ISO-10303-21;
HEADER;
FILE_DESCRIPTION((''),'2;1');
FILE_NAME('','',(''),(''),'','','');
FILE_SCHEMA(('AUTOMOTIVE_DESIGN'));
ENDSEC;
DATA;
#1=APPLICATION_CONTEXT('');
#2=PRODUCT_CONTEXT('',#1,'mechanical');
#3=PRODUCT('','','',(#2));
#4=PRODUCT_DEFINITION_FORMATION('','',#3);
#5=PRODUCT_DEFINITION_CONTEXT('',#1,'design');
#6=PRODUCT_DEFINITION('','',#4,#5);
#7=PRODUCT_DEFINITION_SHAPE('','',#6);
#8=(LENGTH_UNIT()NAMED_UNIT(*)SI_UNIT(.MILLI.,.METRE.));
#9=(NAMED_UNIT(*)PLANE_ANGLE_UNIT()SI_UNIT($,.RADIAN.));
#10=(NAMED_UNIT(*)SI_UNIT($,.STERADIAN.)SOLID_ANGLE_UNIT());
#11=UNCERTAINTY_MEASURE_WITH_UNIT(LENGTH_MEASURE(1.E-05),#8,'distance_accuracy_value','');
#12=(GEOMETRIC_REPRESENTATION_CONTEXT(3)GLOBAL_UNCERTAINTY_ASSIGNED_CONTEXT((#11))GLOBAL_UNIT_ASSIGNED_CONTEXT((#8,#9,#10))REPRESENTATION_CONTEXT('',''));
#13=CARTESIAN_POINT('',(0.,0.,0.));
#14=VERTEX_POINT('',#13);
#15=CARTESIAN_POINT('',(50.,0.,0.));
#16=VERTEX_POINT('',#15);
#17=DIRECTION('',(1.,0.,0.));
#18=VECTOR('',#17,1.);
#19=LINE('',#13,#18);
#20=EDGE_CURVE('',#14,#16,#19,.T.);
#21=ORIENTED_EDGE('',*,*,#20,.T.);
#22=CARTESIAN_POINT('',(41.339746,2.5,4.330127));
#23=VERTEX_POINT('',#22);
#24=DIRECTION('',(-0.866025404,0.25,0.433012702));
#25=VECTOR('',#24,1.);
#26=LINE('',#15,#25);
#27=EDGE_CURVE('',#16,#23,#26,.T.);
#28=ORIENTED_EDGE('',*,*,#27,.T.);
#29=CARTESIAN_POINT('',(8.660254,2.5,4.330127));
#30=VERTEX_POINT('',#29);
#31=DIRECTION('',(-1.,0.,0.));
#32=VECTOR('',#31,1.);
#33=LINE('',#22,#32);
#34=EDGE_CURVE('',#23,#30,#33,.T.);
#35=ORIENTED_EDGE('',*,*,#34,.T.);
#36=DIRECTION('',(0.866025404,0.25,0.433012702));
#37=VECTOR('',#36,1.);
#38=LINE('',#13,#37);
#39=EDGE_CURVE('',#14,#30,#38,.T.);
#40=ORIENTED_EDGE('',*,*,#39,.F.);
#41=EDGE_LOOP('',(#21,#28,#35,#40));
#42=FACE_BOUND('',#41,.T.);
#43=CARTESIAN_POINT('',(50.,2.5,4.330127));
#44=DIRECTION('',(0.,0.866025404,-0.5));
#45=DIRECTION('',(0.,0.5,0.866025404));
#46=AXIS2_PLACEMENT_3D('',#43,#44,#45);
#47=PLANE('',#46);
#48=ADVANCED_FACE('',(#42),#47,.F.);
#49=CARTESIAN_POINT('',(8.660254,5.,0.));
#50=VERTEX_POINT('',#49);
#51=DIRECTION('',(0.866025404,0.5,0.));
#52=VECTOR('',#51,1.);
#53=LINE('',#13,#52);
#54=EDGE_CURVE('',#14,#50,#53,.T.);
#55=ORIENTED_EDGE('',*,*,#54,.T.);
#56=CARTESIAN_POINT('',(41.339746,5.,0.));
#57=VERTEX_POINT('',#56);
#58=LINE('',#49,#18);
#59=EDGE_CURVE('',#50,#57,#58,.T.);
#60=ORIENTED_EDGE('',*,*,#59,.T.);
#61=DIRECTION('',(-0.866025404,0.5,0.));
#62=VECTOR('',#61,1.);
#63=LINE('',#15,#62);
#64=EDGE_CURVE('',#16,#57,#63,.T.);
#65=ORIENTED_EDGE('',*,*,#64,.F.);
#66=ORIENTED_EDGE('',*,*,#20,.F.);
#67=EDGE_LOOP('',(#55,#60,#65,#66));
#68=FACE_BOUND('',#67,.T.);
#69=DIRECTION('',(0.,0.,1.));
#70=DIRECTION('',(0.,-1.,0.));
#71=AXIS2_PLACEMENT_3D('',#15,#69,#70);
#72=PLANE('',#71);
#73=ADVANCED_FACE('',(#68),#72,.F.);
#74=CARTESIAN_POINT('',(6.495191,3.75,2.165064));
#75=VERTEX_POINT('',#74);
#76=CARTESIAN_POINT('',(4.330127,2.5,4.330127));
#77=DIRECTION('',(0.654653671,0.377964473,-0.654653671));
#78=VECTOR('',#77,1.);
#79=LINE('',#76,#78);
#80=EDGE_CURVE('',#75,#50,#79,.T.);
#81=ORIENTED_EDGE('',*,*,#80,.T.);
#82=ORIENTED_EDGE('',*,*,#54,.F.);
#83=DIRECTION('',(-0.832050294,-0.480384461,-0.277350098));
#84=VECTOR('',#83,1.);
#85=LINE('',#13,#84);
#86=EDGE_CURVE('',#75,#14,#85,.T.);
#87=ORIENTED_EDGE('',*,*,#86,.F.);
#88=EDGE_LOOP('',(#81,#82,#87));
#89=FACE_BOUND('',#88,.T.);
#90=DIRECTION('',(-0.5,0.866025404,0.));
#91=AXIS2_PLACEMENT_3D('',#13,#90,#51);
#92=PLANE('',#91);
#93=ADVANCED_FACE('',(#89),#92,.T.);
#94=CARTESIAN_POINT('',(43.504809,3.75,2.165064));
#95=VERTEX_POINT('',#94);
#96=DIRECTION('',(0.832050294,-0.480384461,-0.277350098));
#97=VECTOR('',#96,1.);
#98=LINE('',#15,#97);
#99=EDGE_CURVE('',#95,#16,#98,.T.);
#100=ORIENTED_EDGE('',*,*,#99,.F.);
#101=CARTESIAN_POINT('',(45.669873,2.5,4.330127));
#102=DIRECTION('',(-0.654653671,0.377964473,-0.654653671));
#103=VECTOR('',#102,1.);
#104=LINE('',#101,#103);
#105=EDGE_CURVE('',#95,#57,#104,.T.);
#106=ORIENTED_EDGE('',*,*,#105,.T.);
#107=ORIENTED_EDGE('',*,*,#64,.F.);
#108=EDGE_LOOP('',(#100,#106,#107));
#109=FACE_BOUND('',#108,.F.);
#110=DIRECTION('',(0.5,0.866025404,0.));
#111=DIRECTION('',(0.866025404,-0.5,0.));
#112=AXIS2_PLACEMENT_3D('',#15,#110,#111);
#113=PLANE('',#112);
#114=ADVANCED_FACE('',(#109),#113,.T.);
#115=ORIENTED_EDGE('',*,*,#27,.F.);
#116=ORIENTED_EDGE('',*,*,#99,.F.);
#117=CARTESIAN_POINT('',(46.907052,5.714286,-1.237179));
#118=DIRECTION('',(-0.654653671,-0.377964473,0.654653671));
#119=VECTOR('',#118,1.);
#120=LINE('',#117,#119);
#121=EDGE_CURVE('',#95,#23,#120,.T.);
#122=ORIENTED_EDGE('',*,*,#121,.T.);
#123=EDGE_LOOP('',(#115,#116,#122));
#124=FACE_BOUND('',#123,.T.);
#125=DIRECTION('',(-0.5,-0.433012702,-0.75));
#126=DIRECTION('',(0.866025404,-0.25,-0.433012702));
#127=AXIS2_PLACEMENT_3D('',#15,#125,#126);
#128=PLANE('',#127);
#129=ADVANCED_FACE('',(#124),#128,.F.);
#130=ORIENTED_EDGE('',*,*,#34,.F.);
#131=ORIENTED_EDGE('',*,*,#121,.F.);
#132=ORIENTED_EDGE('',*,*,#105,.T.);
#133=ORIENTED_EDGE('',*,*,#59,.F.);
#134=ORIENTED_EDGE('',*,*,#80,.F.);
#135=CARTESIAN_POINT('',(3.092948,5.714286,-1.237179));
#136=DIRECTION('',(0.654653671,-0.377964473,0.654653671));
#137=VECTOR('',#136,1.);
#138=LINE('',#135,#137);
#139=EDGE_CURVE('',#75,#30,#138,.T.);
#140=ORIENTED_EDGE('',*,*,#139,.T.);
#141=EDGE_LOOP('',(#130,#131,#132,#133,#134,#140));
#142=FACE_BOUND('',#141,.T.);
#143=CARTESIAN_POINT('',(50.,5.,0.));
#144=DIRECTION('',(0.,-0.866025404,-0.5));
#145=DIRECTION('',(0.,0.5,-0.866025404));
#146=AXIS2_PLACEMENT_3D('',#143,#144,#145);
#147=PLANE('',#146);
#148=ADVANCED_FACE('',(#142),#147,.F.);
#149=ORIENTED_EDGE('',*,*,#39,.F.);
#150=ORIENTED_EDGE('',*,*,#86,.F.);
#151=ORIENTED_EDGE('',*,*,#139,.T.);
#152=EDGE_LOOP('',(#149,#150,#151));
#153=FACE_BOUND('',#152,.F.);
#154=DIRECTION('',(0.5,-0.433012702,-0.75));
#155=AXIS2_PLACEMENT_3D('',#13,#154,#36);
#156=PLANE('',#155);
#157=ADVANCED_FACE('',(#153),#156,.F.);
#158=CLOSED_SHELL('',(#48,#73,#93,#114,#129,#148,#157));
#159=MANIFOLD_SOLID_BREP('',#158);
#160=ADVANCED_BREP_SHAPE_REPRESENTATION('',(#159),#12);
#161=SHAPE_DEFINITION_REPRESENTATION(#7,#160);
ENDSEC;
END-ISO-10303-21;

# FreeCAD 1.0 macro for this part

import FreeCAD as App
import Part
import Sketcher

V = App.Vector
Q = App.Units.Quantity

doc = App.newDocument("Part")
body = doc.addObject("PartDesign::Body", "Body")

sketch1 = body.newObject("Sketcher::SketchObject", "Sketch")
sketch1.AttachmentSupport = (doc.getObject("YZ_Plane"), [""])
sketch1.MapMode = "FlatFace"
sketch1.addGeometry([
    Part.LineSegment(V(2, 4, 0), V(0, 0, 0)),
    Part.LineSegment(V(0, 0, 0), V(5, 0, 0)),
    Part.LineSegment(V(5, 0, 0), V(2, 4, 0)),
], False)
sketch1.addConstraint([
    Sketcher.Constraint("Coincident", 0, 2, 1, 1),
    Sketcher.Constraint("Coincident", 1, 2, 2, 1),
    Sketcher.Constraint("Coincident", 2, 2, 0, 1),
    Sketcher.Constraint("Horizontal", 1),
    Sketcher.Constraint("Coincident", 0, 2, -1, 1),
    Sketcher.Constraint("Equal", 0, 2),
    Sketcher.Constraint("DistanceX", 1, 1, 1, 2, 5.0),
    Sketcher.Constraint("Angle", 0, Q("-120 deg")),
])
pad1 = body.newObject("PartDesign::Pad", "Pad")
pad1.Profile = sketch1
pad1.Length = 40

sketch2 = body.newObject("Sketcher::SketchObject", "Sketch001")
sketch2.AttachmentSupport = (doc.getObject("XY_Plane"), [""])
sketch2.MapMode = "FlatFace"
sketch2.addGeometry([
    Part.LineSegment(V(0, 10, 0), V(0, 0, 0)),
    Part.LineSegment(V(0, 0, 0), V(17, 10, 0)),
    Part.LineSegment(V(17, 10, 0), V(0, 10, 0)),
], False)
sketch2.addConstraint([
    Sketcher.Constraint("Coincident", 0, 2, 1, 1),
    Sketcher.Constraint("Coincident", 1, 2, 2, 1),
    Sketcher.Constraint("Coincident", 2, 2, 0, 1),
    Sketcher.Constraint("Vertical", 0),
    Sketcher.Constraint("Horizontal", 2),
    Sketcher.Constraint("Coincident", 0, 2, -1, 1),
    Sketcher.Constraint("Angle", 1, Q("30 deg")),
    Sketcher.Constraint("DistanceX", 2, 2, 2, 1, 17.05208),
])
pocket1 = body.newObject("PartDesign::Pocket", "Pocket")
pocket1.Profile = sketch2
pocket1.Length = 25
pocket1.Reversed = True

sketch3 = body.newObject("Sketcher::SketchObject", "Sketch002")
sketch3.Placement = App.Placement(V(0, 0, 0), App.Rotation(V(1, 0, 0), V(0, 0.5, 0.866025404), V(0, -0.866025404, 0.5), "ZXY"))
sketch3.addGeometry([
    Part.LineSegment(V(0, 9, 0), V(0, 0, 0)),
    Part.LineSegment(V(0, 0, 0), V(16, 9, 0)),
    Part.LineSegment(V(16, 9, 0), V(0, 9, 0)),
], False)
sketch3.addConstraint([
    Sketcher.Constraint("Coincident", 0, 2, 1, 1),
    Sketcher.Constraint("Coincident", 1, 2, 2, 1),
    Sketcher.Constraint("Coincident", 2, 2, 0, 1),
    Sketcher.Constraint("Vertical", 0),
    Sketcher.Constraint("Horizontal", 2),
    Sketcher.Constraint("Coincident", 0, 2, -1, 1),
    Sketcher.Constraint("Angle", 1, Q("30 deg")),
    Sketcher.Constraint("DistanceX", 2, 2, 2, 1, 15.83351),
])
pocket2 = body.newObject("PartDesign::Pocket", "Pocket001")
pocket2.Profile = sketch3
pocket2.Length = 25
body2 = doc.addObject("PartDesign::Body", "Body001")
doc.recompute()

body2.BaseFeature = body
doc.recompute()

mirroring = doc.addObject("Part::Mirroring", "Mirroring")
mirroring.Source = body
mirroring.Base = V(25, 0, 0)
mirroring.Normal = V(1, 0, 0)
body3 = doc.addObject("PartDesign::Body", "Body002")
body3.BaseFeature = mirroring
boolean = body2.newObject("PartDesign::Boolean", "Boolean")
boolean.Type = "Fuse"
boolean.addObjects([body3])
doc.recompute()
mirroring.Visibility = False

doc.recompute()
